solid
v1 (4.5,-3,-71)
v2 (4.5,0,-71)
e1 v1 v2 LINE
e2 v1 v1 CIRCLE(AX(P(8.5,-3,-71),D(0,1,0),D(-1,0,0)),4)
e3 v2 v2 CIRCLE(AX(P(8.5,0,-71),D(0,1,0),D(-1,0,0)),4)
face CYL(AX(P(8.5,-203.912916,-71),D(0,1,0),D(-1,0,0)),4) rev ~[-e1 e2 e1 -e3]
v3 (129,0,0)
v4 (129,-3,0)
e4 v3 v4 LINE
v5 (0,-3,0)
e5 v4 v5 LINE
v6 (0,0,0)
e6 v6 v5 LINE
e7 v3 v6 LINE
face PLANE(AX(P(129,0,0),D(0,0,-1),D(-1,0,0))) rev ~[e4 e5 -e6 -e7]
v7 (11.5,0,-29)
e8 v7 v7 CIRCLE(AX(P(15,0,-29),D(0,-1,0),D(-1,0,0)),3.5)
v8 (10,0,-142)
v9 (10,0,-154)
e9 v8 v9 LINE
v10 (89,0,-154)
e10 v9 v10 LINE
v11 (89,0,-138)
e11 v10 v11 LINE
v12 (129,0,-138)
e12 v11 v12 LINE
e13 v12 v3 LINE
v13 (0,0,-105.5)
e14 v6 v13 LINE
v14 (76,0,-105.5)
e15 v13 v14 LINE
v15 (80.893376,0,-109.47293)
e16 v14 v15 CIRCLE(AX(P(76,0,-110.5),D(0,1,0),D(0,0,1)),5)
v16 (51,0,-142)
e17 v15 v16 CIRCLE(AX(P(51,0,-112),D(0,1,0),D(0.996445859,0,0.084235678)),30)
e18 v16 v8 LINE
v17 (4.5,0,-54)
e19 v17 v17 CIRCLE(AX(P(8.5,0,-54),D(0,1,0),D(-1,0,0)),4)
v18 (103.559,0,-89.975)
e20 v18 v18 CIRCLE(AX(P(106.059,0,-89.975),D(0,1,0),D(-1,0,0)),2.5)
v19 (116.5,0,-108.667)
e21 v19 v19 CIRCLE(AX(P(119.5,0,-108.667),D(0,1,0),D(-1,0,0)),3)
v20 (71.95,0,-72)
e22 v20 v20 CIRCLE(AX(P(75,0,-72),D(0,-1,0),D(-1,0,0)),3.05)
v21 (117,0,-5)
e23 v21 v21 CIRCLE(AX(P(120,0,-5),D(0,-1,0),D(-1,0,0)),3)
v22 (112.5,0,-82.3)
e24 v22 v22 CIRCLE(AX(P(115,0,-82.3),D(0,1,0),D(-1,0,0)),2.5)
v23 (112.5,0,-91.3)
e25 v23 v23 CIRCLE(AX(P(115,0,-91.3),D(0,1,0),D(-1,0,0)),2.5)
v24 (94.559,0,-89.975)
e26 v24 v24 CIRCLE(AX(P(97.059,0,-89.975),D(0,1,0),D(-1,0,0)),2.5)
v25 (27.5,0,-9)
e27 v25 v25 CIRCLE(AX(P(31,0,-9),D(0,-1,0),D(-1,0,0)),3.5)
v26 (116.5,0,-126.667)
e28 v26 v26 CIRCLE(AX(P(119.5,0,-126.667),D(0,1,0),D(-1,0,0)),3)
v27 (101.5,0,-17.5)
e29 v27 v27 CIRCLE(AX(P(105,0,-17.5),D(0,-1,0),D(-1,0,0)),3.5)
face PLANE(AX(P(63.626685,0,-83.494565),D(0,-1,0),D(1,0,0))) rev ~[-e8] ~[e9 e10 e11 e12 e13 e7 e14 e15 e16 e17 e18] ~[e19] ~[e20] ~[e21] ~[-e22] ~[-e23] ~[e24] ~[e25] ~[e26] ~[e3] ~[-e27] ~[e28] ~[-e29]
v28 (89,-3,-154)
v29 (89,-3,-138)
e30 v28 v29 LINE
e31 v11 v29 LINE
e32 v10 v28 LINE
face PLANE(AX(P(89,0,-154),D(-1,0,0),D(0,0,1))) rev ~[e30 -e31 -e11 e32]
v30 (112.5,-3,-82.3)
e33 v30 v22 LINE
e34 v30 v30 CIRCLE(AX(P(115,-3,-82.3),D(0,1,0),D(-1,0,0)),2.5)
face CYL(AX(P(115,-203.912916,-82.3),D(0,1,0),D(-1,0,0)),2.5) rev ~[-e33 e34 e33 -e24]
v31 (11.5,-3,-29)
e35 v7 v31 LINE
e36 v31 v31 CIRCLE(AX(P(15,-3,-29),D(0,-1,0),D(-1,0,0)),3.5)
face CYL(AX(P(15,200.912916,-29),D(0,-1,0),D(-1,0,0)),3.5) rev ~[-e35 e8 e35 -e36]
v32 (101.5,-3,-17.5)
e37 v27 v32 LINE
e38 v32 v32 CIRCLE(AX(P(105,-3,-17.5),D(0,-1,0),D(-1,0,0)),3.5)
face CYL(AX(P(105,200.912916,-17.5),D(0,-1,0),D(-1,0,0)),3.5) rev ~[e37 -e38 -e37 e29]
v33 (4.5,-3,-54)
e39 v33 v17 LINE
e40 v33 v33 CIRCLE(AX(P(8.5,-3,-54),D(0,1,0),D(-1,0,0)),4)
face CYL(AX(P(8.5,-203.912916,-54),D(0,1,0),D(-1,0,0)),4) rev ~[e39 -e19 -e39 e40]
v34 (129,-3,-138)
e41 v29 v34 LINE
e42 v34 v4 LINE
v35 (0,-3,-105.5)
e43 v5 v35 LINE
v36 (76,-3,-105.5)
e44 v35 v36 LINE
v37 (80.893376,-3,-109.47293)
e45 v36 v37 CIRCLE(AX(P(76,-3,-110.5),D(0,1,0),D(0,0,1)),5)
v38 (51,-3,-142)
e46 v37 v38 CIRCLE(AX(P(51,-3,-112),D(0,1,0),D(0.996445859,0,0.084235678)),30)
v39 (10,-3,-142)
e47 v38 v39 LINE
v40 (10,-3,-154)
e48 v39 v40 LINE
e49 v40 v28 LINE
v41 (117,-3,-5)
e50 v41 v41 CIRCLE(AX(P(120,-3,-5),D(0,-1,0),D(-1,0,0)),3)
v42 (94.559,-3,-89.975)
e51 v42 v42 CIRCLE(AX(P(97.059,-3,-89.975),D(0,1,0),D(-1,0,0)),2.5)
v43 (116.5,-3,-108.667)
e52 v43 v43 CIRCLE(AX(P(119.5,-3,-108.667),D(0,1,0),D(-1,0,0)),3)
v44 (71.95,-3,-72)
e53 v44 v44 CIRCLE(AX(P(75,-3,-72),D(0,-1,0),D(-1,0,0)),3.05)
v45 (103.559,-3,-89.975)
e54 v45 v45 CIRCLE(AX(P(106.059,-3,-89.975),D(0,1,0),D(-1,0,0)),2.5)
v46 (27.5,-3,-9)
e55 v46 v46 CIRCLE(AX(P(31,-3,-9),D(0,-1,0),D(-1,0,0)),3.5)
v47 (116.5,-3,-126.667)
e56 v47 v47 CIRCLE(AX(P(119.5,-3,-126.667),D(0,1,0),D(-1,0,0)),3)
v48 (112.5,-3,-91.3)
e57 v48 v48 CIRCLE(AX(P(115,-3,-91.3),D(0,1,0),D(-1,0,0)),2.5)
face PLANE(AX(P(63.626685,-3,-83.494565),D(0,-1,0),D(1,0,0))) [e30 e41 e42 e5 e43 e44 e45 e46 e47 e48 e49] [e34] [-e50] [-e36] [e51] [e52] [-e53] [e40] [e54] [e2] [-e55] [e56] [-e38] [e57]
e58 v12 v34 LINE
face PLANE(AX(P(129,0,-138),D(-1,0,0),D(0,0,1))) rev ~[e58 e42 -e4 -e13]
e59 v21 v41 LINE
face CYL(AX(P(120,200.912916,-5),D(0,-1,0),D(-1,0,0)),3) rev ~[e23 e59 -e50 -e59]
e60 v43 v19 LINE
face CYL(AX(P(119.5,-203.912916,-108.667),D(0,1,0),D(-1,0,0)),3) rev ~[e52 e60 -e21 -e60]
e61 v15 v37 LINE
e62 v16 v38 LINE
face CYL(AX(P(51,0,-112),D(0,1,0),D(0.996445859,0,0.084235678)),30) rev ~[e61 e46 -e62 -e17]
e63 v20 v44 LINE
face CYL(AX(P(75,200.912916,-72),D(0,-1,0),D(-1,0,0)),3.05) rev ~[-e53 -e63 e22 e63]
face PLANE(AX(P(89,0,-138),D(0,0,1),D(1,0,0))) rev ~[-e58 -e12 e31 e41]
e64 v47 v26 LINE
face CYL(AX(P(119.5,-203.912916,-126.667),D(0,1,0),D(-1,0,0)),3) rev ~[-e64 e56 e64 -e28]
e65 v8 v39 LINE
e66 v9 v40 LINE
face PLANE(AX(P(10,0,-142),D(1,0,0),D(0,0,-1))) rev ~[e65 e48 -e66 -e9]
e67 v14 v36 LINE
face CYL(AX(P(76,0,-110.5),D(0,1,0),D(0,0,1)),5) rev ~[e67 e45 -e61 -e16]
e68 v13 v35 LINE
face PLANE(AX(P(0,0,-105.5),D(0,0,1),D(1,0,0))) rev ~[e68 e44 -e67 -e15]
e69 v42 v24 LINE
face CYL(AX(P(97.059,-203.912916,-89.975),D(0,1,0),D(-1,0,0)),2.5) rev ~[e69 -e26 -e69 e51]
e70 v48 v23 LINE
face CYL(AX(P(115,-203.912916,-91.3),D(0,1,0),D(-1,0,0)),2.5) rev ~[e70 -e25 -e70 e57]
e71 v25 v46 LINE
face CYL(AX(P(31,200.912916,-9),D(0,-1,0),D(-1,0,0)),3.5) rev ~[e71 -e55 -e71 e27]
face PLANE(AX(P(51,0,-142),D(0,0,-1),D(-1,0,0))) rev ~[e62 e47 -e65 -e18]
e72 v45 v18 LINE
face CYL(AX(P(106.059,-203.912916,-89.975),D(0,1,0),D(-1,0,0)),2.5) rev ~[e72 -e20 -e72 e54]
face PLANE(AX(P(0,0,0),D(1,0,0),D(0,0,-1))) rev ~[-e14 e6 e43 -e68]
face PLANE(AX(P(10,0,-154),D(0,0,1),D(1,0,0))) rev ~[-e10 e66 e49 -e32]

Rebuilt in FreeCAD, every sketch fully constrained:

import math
import FreeCAD as App
import Part
import Sketcher
from FreeCAD import Vector
Q = App.Units.Quantity

doc = App.newDocument("Part")
body = doc.addObject("PartDesign::Body", "Body")

# Sketch on XZ plane
sketch1 = doc.addObject("Sketcher::SketchObject", "Sketch")
body.addObject(sketch1)
sketch1.AttachmentSupport = (doc.XZ_Plane, [""])
sketch1.MapMode = "FlatFace"
sketch1.addGeometry([
    Part.LineSegment(Vector(129, 0, 0), Vector(0, 0, 0)),  # 0
    Part.LineSegment(Vector(0, 0, 0), Vector(0, -106, 0)),  # 1
    Part.LineSegment(Vector(0, -106, 0), Vector(76, -106, 0)),  # 2
    Part.ArcOfCircle(Part.Circle(Vector(76, -110, 0), Vector(0, 0, 1), 5), math.radians(12), math.radians(90)),  # 3
    Part.ArcOfCircle(Part.Circle(Vector(51, -112, 0), Vector(0, 0, 1), 30), math.radians(-90), math.radians(5)),  # 4
    Part.LineSegment(Vector(51, -142, 0), Vector(10, -142, 0)),  # 5
    Part.LineSegment(Vector(10, -142, 0), Vector(10, -154, 0)),  # 6
    Part.LineSegment(Vector(10, -154, 0), Vector(89, -154, 0)),  # 7
    Part.LineSegment(Vector(89, -154, 0), Vector(89, -138, 0)),  # 8
    Part.LineSegment(Vector(89, -138, 0), Vector(129, -138, 0)),  # 9
    Part.LineSegment(Vector(129, -138, 0), Vector(129, 0, 0)),  # 10
], False)
sketch1.addConstraint([
    Sketcher.Constraint("Coincident", 0, 2, 1, 1),
    Sketcher.Constraint("Coincident", 1, 2, 2, 1),
    Sketcher.Constraint("Tangent", 2, 2, 3, 2),
    Sketcher.Constraint("Coincident", 3, 1, 4, 2),
    Sketcher.Constraint("Tangent", 4, 1, 5, 1),
    Sketcher.Constraint("Coincident", 5, 2, 6, 1),
    Sketcher.Constraint("Coincident", 6, 2, 7, 1),
    Sketcher.Constraint("Coincident", 7, 2, 8, 1),
    Sketcher.Constraint("Coincident", 8, 2, 9, 1),
    Sketcher.Constraint("Coincident", 9, 2, 10, 1),
    Sketcher.Constraint("Coincident", 10, 2, 0, 1),
    Sketcher.Constraint("Horizontal", 0),
    Sketcher.Constraint("Vertical", 1),
    Sketcher.Constraint("Horizontal", 2),
    Sketcher.Constraint("Horizontal", 5),
    Sketcher.Constraint("Vertical", 6),
    Sketcher.Constraint("Horizontal", 7),
    Sketcher.Constraint("Vertical", 8),
    Sketcher.Constraint("Horizontal", 9),
    Sketcher.Constraint("Vertical", 10),
    Sketcher.Constraint("Coincident", 0, 2, -1, 1),
    Sketcher.Constraint("Radius", 3, Q("5 mm")),
    Sketcher.Constraint("Radius", 4, Q("30 mm")),
    Sketcher.Constraint("DistanceX", 0, 2, 0, 1, Q("129 mm")),
    Sketcher.Constraint("DistanceX", 2, 1, 2, 2, Q("76 mm")),
    Sketcher.Constraint("DistanceX", 5, 2, 5, 1, Q("41 mm")),
    Sketcher.Constraint("DistanceX", 7, 1, 7, 2, Q("79 mm")),
    Sketcher.Constraint("DistanceX", 9, 1, 9, 2, Q("40 mm")),
    Sketcher.Constraint("DistanceY", 6, 2, 6, 1, Q("12 mm")),
    Sketcher.Constraint("DistanceY", 8, 1, 8, 2, Q("16 mm")),
    Sketcher.Constraint("DistanceY", 10, 1, 10, 2, Q("138 mm")),
    Sketcher.Constraint("DistanceY", 1, 2, 1, 1, Q("105.5 mm")),
])
pad1 = doc.addObject("PartDesign::Pad", "Pad")
body.addObject(pad1)
pad1.Profile = sketch1
pad1.Length = 3

# Sketch on XZ plane
sketch2 = doc.addObject("Sketcher::SketchObject", "Sketch001")
body.addObject(sketch2)
sketch2.AttachmentSupport = (doc.XZ_Plane, [""])
sketch2.MapMode = "FlatFace"
sketch2.addGeometry(Part.Circle(Vector(120, -5, 0), Vector(0, 0, 1), 3), False)
sketch2.addConstraint([
    Sketcher.Constraint("Diameter", 0, Q("6 mm")),
    Sketcher.Constraint("DistanceX", -1, 1, 0, 3, Q("120 mm")),
    Sketcher.Constraint("DistanceY", 0, 3, -1, 1, Q("5 mm")),
])
doc.recompute()
hole = doc.addObject("PartDesign::Hole", "Hole")
body.addObject(hole)
hole.Profile = sketch2
hole.ThreadType = "None"
hole.Diameter = 6
hole.DepthType = "ThroughAll"
hole.Reversed = True

# Sketch on XZ plane
sketch3 = doc.addObject("Sketcher::SketchObject", "Sketch002")
body.addObject(sketch3)
sketch3.AttachmentSupport = (doc.XZ_Plane, [""])
sketch3.MapMode = "FlatFace"
sketch3.addGeometry([
    Part.Circle(Vector(15, -29, 0), Vector(0, 0, 1), 3.5),
    Part.Circle(Vector(31, -9, 0), Vector(0, 0, 1), 3.5),
    Part.Circle(Vector(105, -17.5, 0), Vector(0, 0, 1), 3.5),
], False)
sketch3.addConstraint([
    Sketcher.Constraint("Equal", 0, 1),
    Sketcher.Constraint("Equal", 1, 2),
    Sketcher.Constraint("Diameter", 0, Q("7 mm")),
    Sketcher.Constraint("DistanceX", -1, 1, 0, 3, Q("15 mm")),
    Sketcher.Constraint("DistanceY", 0, 3, -1, 1, Q("29 mm")),
    Sketcher.Constraint("DistanceX", -1, 1, 1, 3, Q("31 mm")),
    Sketcher.Constraint("DistanceY", 1, 3, -1, 1, Q("9 mm")),
    Sketcher.Constraint("DistanceX", -1, 1, 2, 3, Q("105 mm")),
    Sketcher.Constraint("DistanceY", 2, 3, -1, 1, Q("17.5 mm")),
])
doc.recompute()
hole2 = doc.addObject("PartDesign::Hole", "Hole001")
body.addObject(hole2)
hole2.Profile = sketch3
hole2.ThreadType = "None"
hole2.Diameter = 7
hole2.DepthType = "ThroughAll"
hole2.Reversed = True

# Sketch on XZ plane
sketch4 = doc.addObject("Sketcher::SketchObject", "Sketch003")
body.addObject(sketch4)
sketch4.AttachmentSupport = (doc.XZ_Plane, [""])
sketch4.MapMode = "FlatFace"
sketch4.addGeometry(Part.Circle(Vector(75, -72, 0), Vector(0, 0, 1), 3), False)
sketch4.addConstraint([
    Sketcher.Constraint("Diameter", 0, Q("6.1 mm")),
    Sketcher.Constraint("DistanceX", -1, 1, 0, 3, Q("75 mm")),
    Sketcher.Constraint("DistanceY", 0, 3, -1, 1, Q("72 mm")),
])
doc.recompute()
hole3 = doc.addObject("PartDesign::Hole", "Hole002")
body.addObject(hole3)
hole3.Profile = sketch4
hole3.ThreadType = "None"
hole3.Diameter = 6.1
hole3.DepthType = "ThroughAll"
hole3.Reversed = True

# Sketch on XZ plane
sketch5 = doc.addObject("Sketcher::SketchObject", "Sketch004")
body.addObject(sketch5)
sketch5.AttachmentSupport = (doc.XZ_Plane, [""])
sketch5.MapMode = "FlatFace"
sketch5.AttachmentOffset = App.Placement(Vector(0, 0, 3), App.Rotation())
sketch5.addGeometry([
    Part.Circle(Vector(106.1, -90, 0), Vector(0, 0, 1), 2.5),
    Part.Circle(Vector(115, -91.3, 0), Vector(0, 0, 1), 2.5),
    Part.Circle(Vector(115, -82.3, 0), Vector(0, 0, 1), 2.5),
    Part.Circle(Vector(97.1, -90, 0), Vector(0, 0, 1), 2.5),
], False)
sketch5.addConstraint([
    Sketcher.Constraint("Equal", 0, 1),
    Sketcher.Constraint("Equal", 1, 2),
    Sketcher.Constraint("Equal", 2, 3),
    Sketcher.Constraint("Horizontal", 0, 3, 3, 3),
    Sketcher.Constraint("Vertical", 1, 3, 2, 3),
    Sketcher.Constraint("Diameter", 0, Q("5 mm")),
    Sketcher.Constraint("DistanceX", -1, 1, 1, 3, Q("115 mm")),
    Sketcher.Constraint("DistanceY", 1, 3, 2, 3, Q("9 mm")),
    Sketcher.Constraint("DistanceX", 3, 3, 0, 3, Q("9 mm")),
    Sketcher.Constraint("DistanceY", 1, 3, -1, 1, Q("91.3 mm")),
    Sketcher.Constraint("DistanceX", -1, 1, 0, 3, Q("106.059 mm")),
    Sketcher.Constraint("DistanceY", 0, 3, -1, 1, Q("89.975 mm")),
])
doc.recompute()
hole4 = doc.addObject("PartDesign::Hole", "Hole003")
body.addObject(hole4)
hole4.Profile = sketch5
hole4.ThreadType = "None"
hole4.Diameter = 5
hole4.DepthType = "ThroughAll"

# Sketch on XZ plane
sketch6 = doc.addObject("Sketcher::SketchObject", "Sketch005")
body.addObject(sketch6)
sketch6.AttachmentSupport = (doc.XZ_Plane, [""])
sketch6.MapMode = "FlatFace"
sketch6.AttachmentOffset = App.Placement(Vector(0, 0, 3), App.Rotation())
sketch6.addGeometry([
    Part.Circle(Vector(8.5, -71, 0), Vector(0, 0, 1), 4),
    Part.Circle(Vector(8.5, -54, 0), Vector(0, 0, 1), 4),
], False)
sketch6.addConstraint([
    Sketcher.Constraint("Equal", 0, 1),
    Sketcher.Constraint("Vertical", 0, 3, 1, 3),
    Sketcher.Constraint("Diameter", 0, Q("8 mm")),
    Sketcher.Constraint("DistanceY", 0, 3, -1, 1, Q("71 mm")),
    Sketcher.Constraint("DistanceY", 1, 3, -1, 1, Q("54 mm")),
    Sketcher.Constraint("DistanceX", -1, 1, 0, 3, Q("8.5 mm")),
])
doc.recompute()
hole5 = doc.addObject("PartDesign::Hole", "Hole004")
body.addObject(hole5)
hole5.Profile = sketch6
hole5.ThreadType = "None"
hole5.Diameter = 8
hole5.DepthType = "ThroughAll"

# Sketch on XZ plane
sketch7 = doc.addObject("Sketcher::SketchObject", "Sketch006")
body.addObject(sketch7)
sketch7.AttachmentSupport = (doc.XZ_Plane, [""])
sketch7.MapMode = "FlatFace"
sketch7.AttachmentOffset = App.Placement(Vector(0, 0, 3), App.Rotation())
sketch7.addGeometry([
    Part.Circle(Vector(119.5, -108.7, 0), Vector(0, 0, 1), 3),
    Part.Circle(Vector(119.5, -126.7, 0), Vector(0, 0, 1), 3),
], False)
sketch7.addConstraint([
    Sketcher.Constraint("Equal", 0, 1),
    Sketcher.Constraint("Vertical", 0, 3, 1, 3),
    Sketcher.Constraint("Diameter", 0, Q("6 mm")),
    Sketcher.Constraint("DistanceY", 1, 3, 0, 3, Q("18 mm")),
    Sketcher.Constraint("DistanceX", -1, 1, 0, 3, Q("119.5 mm")),
    Sketcher.Constraint("DistanceY", 0, 3, -1, 1, Q("108.667 mm")),
])
doc.recompute()
hole6 = doc.addObject("PartDesign::Hole", "Hole005")
body.addObject(hole6)
hole6.Profile = sketch7
hole6.ThreadType = "None"
hole6.Diameter = 6
hole6.DepthType = "ThroughAll"

doc.recompute()
